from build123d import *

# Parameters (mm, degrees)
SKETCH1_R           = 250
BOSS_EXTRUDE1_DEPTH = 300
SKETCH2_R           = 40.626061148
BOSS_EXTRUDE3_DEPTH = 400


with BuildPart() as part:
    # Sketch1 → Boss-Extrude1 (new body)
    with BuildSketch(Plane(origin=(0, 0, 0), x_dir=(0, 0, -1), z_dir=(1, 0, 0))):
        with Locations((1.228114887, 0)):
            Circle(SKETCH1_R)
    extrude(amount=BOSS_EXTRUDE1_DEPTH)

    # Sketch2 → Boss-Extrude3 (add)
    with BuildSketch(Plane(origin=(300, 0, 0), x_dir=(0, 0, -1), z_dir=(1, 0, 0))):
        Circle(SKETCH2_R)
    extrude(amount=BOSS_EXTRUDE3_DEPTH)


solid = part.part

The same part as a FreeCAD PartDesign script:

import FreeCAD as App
import Part
import Sketcher
from FreeCAD import Vector

doc = App.newDocument("Part")
body = doc.addObject("PartDesign::Body", "Body")

sketch1 = body.newObject("Sketcher::SketchObject", "Sketch")
sketch1.AttachmentSupport = (doc.getObject("YZ_Plane"), [""])
sketch1.MapMode = "FlatFace"
sketch1.addGeometry(Part.Circle(Vector(0, -1, 0), Vector(0, 0, 1), 250), False)
sketch1.addConstraint([
    Sketcher.Constraint("PointOnObject", 0, 3, -2),
    Sketcher.Constraint("Diameter", 0, 500.0),
    Sketcher.Constraint("DistanceY", 0, 3, -1, 1, 1.228115),
])
pad1 = body.newObject("PartDesign::Pad", "Pad")
pad1.Profile = sketch1
pad1.Length = 300

sketch2 = body.newObject("Sketcher::SketchObject", "Sketch001")
sketch2.AttachmentSupport = (doc.getObject("YZ_Plane"), [""])
sketch2.MapMode = "FlatFace"
sketch2.AttachmentOffset = App.Placement(Vector(0, 0, 300), App.Rotation())
sketch2.addGeometry(Part.Circle(Vector(0, 0, 0), Vector(0, 0, 1), 41), False)
sketch2.addConstraint([
    Sketcher.Constraint("Coincident", 0, 3, -1, 1),
    Sketcher.Constraint("Diameter", 0, 81.252122),
])
pad2 = body.newObject("PartDesign::Pad", "Pad001")
pad2.Profile = sketch2
pad2.Length = 400

doc.recompute()
